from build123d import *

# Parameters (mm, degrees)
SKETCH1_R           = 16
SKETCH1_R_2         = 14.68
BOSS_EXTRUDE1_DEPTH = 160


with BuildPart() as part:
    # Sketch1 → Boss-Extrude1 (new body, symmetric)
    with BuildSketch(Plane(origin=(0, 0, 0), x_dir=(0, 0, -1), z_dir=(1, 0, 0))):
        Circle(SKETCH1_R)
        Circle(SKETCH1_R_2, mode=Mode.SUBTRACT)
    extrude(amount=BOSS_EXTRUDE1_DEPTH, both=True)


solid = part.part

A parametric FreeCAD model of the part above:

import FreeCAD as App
import Part
import Sketcher
from FreeCAD import Vector

doc = App.newDocument("Part")
params = doc.addObject("Spreadsheet::Sheet", "Params")
for row, (alias, value) in enumerate([
    ("sketch1_diameter", "32 mm"),
    ("sketch1_diameter2", "29.36 mm"),
    ("pad1_length", "320 mm"),
], start=1):
    params.set(f"A{row}", alias)
    params.set(f"B{row}", "=" + value)
    params.setAlias(f"B{row}", alias)

body = doc.addObject("PartDesign::Body", "Body")

sketch1 = body.newObject("Sketcher::SketchObject", "Sketch")
sketch1.AttachmentSupport = (doc.getObject("YZ_Plane"), [""])
sketch1.MapMode = "FlatFace"
sketch1.addGeometry([
    Part.Circle(Vector(0, 0, 0), Vector(0, 0, 1), 16),
    Part.Circle(Vector(0, 0, 0), Vector(0, 0, 1), 15),
], False)
sketch1.addConstraint([
    Sketcher.Constraint("Coincident", 0, 3, -1, 1),
    Sketcher.Constraint("Coincident", 1, 3, -1, 1),
    Sketcher.Constraint("Diameter", 0, 32.0),
    Sketcher.Constraint("Diameter", 1, 29.36),
])
sketch1.setExpression("Constraints[2]", "Params.sketch1_diameter")
sketch1.setExpression("Constraints[3]", "Params.sketch1_diameter2")
pad1 = body.newObject("PartDesign::Pad", "Pad")
pad1.Profile = sketch1
pad1.setExpression("Length", "Params.pad1_length")
pad1.Midplane = True

doc.recompute()
